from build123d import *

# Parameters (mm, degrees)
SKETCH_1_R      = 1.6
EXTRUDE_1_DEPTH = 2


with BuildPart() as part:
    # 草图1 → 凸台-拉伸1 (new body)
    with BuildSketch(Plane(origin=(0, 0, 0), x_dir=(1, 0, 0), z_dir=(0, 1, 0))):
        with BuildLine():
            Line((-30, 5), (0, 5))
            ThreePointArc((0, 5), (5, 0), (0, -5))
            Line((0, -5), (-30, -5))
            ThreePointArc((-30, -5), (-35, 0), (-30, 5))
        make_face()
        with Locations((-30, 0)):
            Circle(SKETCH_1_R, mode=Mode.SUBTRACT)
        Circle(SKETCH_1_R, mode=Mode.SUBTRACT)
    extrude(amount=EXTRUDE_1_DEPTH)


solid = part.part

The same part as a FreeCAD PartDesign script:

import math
import FreeCAD as App
import Part
import Sketcher
from FreeCAD import Vector

doc = App.newDocument("Part")
params = doc.addObject("Spreadsheet::Sheet", "Params")
for row, (alias, value) in enumerate([
    ("sketch1_radius", "5 mm"),
    ("sketch1_diameter", "3.2 mm"),
    ("sketch1_width", "30 mm"),
    ("pad1_length", "2 mm"),
], start=1):
    params.set(f"A{row}", alias)
    params.set(f"B{row}", "=" + value)
    params.setAlias(f"B{row}", alias)

body = doc.addObject("PartDesign::Body", "Body")

# Sketch on XZ plane
sketch1 = body.newObject("Sketcher::SketchObject", "Sketch")
sketch1.AttachmentSupport = (doc.getObject("XZ_Plane"), [""])
sketch1.MapMode = "FlatFace"
sketch1.addGeometry([
    Part.LineSegment(Vector(0, -5, 0), Vector(-30, -5, 0)),  # 0
    Part.ArcOfCircle(Part.Circle(Vector(-30, 0, 0), Vector(0, 0, 1), 5), math.radians(90), math.radians(270)),  # 1
    Part.LineSegment(Vector(-30, 5, 0), Vector(0, 5, 0)),  # 2
    Part.ArcOfCircle(Part.Circle(Vector(0, 0, 0), Vector(0, 0, 1), 5), math.radians(-90), math.radians(90)),  # 3
    Part.Circle(Vector(0, 0, 0), Vector(0, 0, 1), 1.6),  # 4
    Part.Circle(Vector(-30, 0, 0), Vector(0, 0, 1), 1.6),  # 5
], False)
sketch1.addConstraint([
    Sketcher.Constraint("Tangent", 0, 2, 1, 2),
    Sketcher.Constraint("Tangent", 1, 1, 2, 1),
    Sketcher.Constraint("Tangent", 2, 2, 3, 2),
    Sketcher.Constraint("Tangent", 3, 1, 0, 1),
    Sketcher.Constraint("Horizontal", 0),
    Sketcher.Constraint("Horizontal", 2),
    Sketcher.Constraint("Coincident", 3, 3, -1, 1),
    Sketcher.Constraint("Coincident", 4, 3, -1, 1),
    Sketcher.Constraint("Coincident", 5, 3, 1, 3),
    Sketcher.Constraint("Equal", 4, 5),
    Sketcher.Constraint("Radius", 1, 5.0),
    Sketcher.Constraint("Diameter", 4, 3.2),
    Sketcher.Constraint("DistanceX", 0, 2, 0, 1, 30.0),
])
sketch1.setExpression("Constraints[10]", "Params.sketch1_radius")
sketch1.setExpression("Constraints[11]", "Params.sketch1_diameter")
sketch1.setExpression("Constraints[12]", "Params.sketch1_width")
pad1 = body.newObject("PartDesign::Pad", "Pad")
pad1.Profile = sketch1
pad1.setExpression("Length", "Params.pad1_length")
pad1.Reversed = True

doc.recompute()
